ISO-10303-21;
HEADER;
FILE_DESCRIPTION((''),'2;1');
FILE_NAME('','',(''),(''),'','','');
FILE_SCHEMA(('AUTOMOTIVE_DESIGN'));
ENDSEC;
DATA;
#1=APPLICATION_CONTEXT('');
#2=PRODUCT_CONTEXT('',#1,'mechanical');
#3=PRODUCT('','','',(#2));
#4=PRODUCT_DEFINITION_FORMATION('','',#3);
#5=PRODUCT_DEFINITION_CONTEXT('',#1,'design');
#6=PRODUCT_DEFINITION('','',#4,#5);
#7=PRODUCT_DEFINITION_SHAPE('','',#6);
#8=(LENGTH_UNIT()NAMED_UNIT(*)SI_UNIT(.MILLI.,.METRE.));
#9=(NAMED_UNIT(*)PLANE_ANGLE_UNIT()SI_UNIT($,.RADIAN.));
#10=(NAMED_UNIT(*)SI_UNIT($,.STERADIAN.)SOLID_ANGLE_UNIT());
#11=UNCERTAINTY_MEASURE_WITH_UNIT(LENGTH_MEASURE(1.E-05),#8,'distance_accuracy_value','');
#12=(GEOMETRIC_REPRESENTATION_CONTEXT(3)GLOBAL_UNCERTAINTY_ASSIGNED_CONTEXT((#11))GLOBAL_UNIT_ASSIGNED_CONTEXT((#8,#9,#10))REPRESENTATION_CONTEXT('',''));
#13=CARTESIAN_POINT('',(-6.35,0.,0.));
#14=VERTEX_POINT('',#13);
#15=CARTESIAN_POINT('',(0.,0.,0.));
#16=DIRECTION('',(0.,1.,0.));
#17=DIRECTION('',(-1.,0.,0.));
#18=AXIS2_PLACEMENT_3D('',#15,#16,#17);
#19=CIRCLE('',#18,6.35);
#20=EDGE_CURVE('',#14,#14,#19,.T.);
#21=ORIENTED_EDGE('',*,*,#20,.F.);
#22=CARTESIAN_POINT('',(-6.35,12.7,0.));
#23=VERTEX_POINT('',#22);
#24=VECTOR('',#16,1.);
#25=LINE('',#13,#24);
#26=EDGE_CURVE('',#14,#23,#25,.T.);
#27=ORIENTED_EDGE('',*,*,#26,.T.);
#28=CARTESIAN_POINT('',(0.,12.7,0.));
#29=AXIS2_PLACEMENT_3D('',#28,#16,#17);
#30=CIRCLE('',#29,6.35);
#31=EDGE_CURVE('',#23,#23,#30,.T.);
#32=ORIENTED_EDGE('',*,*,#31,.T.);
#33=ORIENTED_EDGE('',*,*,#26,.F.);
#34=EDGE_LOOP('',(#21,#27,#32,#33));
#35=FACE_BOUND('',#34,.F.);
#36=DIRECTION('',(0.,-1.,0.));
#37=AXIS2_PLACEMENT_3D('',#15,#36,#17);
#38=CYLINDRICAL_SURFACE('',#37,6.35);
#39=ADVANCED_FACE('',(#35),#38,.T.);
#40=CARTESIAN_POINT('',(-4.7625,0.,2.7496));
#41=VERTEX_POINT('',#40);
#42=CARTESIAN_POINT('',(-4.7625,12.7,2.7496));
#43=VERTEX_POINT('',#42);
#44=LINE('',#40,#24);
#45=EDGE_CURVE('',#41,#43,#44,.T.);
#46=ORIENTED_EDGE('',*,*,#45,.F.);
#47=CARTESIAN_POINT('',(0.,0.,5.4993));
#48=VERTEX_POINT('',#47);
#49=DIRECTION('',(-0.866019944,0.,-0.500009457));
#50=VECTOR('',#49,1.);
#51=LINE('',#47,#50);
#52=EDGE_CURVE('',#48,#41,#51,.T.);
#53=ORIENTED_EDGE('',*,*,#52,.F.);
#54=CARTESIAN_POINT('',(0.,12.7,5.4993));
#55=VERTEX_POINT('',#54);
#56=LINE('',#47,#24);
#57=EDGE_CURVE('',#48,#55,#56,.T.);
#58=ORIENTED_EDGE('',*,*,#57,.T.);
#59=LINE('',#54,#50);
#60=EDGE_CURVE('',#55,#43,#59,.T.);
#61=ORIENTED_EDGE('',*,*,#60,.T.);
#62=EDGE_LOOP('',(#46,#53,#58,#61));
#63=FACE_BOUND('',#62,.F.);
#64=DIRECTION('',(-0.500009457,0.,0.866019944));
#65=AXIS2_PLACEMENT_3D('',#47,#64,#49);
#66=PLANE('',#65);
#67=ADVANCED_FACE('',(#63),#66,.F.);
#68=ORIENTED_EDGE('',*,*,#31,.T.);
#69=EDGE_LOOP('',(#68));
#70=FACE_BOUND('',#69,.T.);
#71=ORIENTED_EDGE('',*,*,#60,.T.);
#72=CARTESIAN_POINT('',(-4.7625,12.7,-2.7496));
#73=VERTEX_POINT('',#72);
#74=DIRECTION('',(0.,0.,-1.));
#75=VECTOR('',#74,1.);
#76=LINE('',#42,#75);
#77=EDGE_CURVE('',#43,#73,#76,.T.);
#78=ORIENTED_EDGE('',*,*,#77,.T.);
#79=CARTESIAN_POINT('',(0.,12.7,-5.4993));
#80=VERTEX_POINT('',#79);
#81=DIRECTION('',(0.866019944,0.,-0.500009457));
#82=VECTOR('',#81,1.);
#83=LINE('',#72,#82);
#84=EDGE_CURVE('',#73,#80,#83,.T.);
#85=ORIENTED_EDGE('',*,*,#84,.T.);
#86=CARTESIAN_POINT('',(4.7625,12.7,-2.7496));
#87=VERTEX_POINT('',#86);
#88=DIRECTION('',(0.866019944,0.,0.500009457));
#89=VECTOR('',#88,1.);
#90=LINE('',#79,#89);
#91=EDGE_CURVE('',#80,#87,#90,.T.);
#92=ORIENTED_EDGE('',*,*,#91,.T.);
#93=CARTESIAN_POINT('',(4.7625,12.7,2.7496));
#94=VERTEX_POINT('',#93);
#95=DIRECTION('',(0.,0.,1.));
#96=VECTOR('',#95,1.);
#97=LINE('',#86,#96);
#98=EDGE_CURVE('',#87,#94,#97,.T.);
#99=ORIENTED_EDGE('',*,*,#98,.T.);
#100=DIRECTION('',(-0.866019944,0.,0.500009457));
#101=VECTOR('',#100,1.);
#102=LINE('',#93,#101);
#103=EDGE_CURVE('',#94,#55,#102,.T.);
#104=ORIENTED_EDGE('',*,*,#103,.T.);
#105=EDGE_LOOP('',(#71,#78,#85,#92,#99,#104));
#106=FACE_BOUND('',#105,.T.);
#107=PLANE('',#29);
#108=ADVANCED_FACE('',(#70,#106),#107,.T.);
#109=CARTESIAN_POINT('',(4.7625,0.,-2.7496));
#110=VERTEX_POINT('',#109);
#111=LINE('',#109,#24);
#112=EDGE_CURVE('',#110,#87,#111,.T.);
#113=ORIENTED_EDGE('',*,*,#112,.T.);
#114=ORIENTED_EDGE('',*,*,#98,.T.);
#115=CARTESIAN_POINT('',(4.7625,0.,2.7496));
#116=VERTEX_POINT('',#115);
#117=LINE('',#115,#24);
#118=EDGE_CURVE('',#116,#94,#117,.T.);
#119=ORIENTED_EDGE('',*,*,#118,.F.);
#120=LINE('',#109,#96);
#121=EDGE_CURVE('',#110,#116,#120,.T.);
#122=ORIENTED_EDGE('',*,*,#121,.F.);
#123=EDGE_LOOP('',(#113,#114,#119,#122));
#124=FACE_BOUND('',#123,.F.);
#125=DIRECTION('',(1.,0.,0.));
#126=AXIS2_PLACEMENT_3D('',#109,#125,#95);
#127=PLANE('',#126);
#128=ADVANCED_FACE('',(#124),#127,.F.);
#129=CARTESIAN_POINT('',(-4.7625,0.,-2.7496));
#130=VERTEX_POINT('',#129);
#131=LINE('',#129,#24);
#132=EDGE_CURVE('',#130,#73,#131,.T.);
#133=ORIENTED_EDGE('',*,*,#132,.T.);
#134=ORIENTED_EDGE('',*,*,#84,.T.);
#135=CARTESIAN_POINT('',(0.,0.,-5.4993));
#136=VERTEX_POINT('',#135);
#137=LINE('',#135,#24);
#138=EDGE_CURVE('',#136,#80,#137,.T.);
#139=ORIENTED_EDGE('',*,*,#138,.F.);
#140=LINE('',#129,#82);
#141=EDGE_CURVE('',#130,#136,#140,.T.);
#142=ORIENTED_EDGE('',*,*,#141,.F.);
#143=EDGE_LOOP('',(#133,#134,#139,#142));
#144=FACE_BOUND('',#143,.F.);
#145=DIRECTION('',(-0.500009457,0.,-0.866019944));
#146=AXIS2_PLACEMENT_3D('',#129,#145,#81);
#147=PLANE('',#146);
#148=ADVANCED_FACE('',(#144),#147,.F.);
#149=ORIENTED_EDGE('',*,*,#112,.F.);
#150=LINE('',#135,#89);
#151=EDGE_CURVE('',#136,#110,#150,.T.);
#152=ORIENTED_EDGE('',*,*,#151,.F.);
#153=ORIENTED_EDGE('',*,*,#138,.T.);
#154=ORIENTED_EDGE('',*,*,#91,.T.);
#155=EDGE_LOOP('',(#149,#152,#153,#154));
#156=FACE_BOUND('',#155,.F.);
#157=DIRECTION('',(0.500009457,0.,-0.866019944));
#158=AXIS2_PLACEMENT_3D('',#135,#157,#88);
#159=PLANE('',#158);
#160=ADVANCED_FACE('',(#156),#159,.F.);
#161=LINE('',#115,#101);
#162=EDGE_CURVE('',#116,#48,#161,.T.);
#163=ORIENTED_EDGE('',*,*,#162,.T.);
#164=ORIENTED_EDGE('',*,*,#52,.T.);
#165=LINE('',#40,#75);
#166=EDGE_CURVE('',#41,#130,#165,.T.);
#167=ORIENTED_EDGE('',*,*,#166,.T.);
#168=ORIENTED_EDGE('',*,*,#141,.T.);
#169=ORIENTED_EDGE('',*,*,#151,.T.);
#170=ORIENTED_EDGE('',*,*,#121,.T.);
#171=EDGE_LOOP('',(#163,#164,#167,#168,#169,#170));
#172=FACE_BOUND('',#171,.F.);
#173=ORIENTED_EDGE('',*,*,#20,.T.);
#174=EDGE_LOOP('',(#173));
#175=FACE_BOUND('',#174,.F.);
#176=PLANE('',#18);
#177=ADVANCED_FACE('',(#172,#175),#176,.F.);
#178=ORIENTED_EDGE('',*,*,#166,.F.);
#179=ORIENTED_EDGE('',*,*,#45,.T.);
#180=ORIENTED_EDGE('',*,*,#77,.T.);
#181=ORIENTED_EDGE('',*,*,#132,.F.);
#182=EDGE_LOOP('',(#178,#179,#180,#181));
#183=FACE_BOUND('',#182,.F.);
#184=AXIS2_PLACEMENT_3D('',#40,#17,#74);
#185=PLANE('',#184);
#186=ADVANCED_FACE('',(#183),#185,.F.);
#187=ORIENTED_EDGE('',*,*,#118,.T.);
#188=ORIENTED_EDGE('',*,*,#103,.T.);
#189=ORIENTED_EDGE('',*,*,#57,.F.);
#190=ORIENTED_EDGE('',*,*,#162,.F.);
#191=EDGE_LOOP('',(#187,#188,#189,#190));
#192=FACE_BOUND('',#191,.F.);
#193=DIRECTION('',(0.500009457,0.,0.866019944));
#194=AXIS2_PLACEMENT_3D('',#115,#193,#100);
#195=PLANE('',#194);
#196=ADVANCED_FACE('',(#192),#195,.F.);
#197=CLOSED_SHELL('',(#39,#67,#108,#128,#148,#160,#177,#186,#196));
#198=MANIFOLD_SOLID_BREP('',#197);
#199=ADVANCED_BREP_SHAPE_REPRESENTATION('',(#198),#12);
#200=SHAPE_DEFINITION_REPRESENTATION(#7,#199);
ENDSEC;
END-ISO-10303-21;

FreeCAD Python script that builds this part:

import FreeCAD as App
import Part
import Sketcher
Q = App.Units.Quantity

doc = App.newDocument("Part")
params = doc.addObject("Spreadsheet::Sheet", "Params")
for row, (alias, value) in enumerate([
    ("sketch1_diameter", "0.5 in"),
    ("pad1_length", "0.5 in"),
], start=1):
    params.set(f"A{row}", alias)
    params.set(f"B{row}", "=" + value)
    params.setAlias(f"B{row}", alias)

body = doc.addObject("PartDesign::Body", "Body")

sketch1 = doc.addObject("Sketcher::SketchObject", "Sketch")
body.addObject(sketch1)
sketch1.AttachmentSupport = (doc.XZ_Plane, [""])
sketch1.MapMode = "FlatFace"
sketch1.addGeometry([
    Part.Circle(App.Vector(0, 0, 0), App.Vector(0, 0, 1), 6),
    Part.LineSegment(App.Vector(-5, -3, 0), App.Vector(0, -5, 0)),
    Part.LineSegment(App.Vector(0, -5, 0), App.Vector(5, -3, 0)),
    Part.LineSegment(App.Vector(5, -3, 0), App.Vector(5, 3, 0)),
    Part.LineSegment(App.Vector(5, 3, 0), App.Vector(0, 5, 0)),
    Part.LineSegment(App.Vector(0, 5, 0), App.Vector(-5, 3, 0)),
    Part.LineSegment(App.Vector(-5, 3, 0), App.Vector(-5, -3, 0)),
], False)
sketch1.addConstraint([
    Sketcher.Constraint("Coincident", 1, 2, 2, 1),
    Sketcher.Constraint("Coincident", 2, 2, 3, 1),
    Sketcher.Constraint("Coincident", 3, 2, 4, 1),
    Sketcher.Constraint("Coincident", 4, 2, 5, 1),
    Sketcher.Constraint("Coincident", 5, 2, 6, 1),
    Sketcher.Constraint("Coincident", 6, 2, 1, 1),
    Sketcher.Constraint("Vertical", 3),
    Sketcher.Constraint("Vertical", 6),
    Sketcher.Constraint("Coincident", 0, 3, -1, 1),
    Sketcher.Constraint("Symmetric", 1, 2, 4, 2, -1, 1),
    Sketcher.Constraint("Symmetric", 2, 2, 5, 2, -1, 1),
    Sketcher.Constraint("PointOnObject", 1, 2, -2),
    Sketcher.Constraint("Parallel", 1, 4),
    Sketcher.Constraint("Horizontal", 3, 2, 5, 2),
    Sketcher.Constraint("Diameter", 0, Q("0.5 in")),
    Sketcher.Constraint("Angle", 1, Q("-30.0006 deg")),
    Sketcher.Constraint("DistanceX", 5, 2, 3, 2, Q("0.375 in")),
    Sketcher.Constraint("DistanceY", 3, 1, 3, 2, Q("0.2165 in")),
])
sketch1.setExpression("Constraints[14]", "Params.sketch1_diameter")
pad1 = doc.addObject("PartDesign::Pad", "Pad")
body.addObject(pad1)
pad1.Profile = sketch1
pad1.setExpression("Length", "Params.pad1_length")
pad1.Reversed = True

doc.recompute()
